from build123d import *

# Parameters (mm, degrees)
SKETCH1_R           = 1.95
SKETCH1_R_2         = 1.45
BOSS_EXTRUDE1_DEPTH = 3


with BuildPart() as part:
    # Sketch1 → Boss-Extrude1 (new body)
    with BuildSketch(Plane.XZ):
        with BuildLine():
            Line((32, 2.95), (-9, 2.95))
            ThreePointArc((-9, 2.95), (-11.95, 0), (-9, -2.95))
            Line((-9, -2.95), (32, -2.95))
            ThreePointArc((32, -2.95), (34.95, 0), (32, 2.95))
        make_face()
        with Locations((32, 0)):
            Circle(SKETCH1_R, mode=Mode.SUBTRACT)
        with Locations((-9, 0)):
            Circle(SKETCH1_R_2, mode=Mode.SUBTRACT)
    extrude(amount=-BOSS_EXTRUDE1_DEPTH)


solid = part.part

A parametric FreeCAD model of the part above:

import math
import FreeCAD as App
import Part
import Sketcher

doc = App.newDocument("Part")
body = doc.addObject("PartDesign::Body", "Body")

# Sketch on XZ plane
sketch1 = body.newObject("Sketcher::SketchObject", "Sketch")
sketch1.AttachmentSupport = (doc.getObject("XZ_Plane"), [""])
sketch1.MapMode = "FlatFace"
sketch1.addGeometry(Part.LineSegment(App.Vector(32, 2.95, 0), App.Vector(-9, 2.95, 0)), False)
sketch1.addGeometry(Part.ArcOfCircle(Part.Circle(App.Vector(-9, 0, 0), App.Vector(0, 0, 1), 2.95), math.radians(90), math.radians(270)), False)
sketch1.addGeometry(Part.LineSegment(App.Vector(-9, -2.95, 0), App.Vector(32, -2.95, 0)), False)
sketch1.addGeometry(Part.ArcOfCircle(Part.Circle(App.Vector(32, 0, 0), App.Vector(0, 0, 1), 2.95), math.radians(-90), math.radians(90)), False)
sketch1.addGeometry(Part.Circle(App.Vector(-9, 0, 0), App.Vector(0, 0, 1), 1.45), False)
sketch1.addGeometry(Part.Circle(App.Vector(32, 0, 0), App.Vector(0, 0, 1), 1.95), False)
sketch1.addConstraint(Sketcher.Constraint("Tangent", 0, 2, 1, 1))
sketch1.addConstraint(Sketcher.Constraint("Tangent", 1, 2, 2, 1))
sketch1.addConstraint(Sketcher.Constraint("Tangent", 2, 2, 3, 1))
sketch1.addConstraint(Sketcher.Constraint("Tangent", 3, 2, 0, 1))
sketch1.addConstraint(Sketcher.Constraint("Horizontal", 0))
sketch1.addConstraint(Sketcher.Constraint("Horizontal", 2))
sketch1.addConstraint(Sketcher.Constraint("Coincident", 4, 3, 1, 3))
sketch1.addConstraint(Sketcher.Constraint("Coincident", 5, 3, 3, 3))
sketch1.addConstraint(Sketcher.Constraint("PointOnObject", 1, 3, -1))
sketch1.addConstraint(Sketcher.Constraint("Diameter", 4, 2.9))
sketch1.addConstraint(Sketcher.Constraint("Diameter", 5, 3.9))
sketch1.addConstraint(Sketcher.Constraint("DistanceX", 0, 2, 0, 1, 41.0))
sketch1.addConstraint(Sketcher.Constraint("Radius", 1, 2.95))
sketch1.addConstraint(Sketcher.Constraint("DistanceX", 1, 3, -1, 1, 9.0))
pad1 = body.newObject("PartDesign::Pad", "Pad")
pad1.Profile = sketch1
pad1.Length = 3
pad1.Reversed = True

doc.recompute()
